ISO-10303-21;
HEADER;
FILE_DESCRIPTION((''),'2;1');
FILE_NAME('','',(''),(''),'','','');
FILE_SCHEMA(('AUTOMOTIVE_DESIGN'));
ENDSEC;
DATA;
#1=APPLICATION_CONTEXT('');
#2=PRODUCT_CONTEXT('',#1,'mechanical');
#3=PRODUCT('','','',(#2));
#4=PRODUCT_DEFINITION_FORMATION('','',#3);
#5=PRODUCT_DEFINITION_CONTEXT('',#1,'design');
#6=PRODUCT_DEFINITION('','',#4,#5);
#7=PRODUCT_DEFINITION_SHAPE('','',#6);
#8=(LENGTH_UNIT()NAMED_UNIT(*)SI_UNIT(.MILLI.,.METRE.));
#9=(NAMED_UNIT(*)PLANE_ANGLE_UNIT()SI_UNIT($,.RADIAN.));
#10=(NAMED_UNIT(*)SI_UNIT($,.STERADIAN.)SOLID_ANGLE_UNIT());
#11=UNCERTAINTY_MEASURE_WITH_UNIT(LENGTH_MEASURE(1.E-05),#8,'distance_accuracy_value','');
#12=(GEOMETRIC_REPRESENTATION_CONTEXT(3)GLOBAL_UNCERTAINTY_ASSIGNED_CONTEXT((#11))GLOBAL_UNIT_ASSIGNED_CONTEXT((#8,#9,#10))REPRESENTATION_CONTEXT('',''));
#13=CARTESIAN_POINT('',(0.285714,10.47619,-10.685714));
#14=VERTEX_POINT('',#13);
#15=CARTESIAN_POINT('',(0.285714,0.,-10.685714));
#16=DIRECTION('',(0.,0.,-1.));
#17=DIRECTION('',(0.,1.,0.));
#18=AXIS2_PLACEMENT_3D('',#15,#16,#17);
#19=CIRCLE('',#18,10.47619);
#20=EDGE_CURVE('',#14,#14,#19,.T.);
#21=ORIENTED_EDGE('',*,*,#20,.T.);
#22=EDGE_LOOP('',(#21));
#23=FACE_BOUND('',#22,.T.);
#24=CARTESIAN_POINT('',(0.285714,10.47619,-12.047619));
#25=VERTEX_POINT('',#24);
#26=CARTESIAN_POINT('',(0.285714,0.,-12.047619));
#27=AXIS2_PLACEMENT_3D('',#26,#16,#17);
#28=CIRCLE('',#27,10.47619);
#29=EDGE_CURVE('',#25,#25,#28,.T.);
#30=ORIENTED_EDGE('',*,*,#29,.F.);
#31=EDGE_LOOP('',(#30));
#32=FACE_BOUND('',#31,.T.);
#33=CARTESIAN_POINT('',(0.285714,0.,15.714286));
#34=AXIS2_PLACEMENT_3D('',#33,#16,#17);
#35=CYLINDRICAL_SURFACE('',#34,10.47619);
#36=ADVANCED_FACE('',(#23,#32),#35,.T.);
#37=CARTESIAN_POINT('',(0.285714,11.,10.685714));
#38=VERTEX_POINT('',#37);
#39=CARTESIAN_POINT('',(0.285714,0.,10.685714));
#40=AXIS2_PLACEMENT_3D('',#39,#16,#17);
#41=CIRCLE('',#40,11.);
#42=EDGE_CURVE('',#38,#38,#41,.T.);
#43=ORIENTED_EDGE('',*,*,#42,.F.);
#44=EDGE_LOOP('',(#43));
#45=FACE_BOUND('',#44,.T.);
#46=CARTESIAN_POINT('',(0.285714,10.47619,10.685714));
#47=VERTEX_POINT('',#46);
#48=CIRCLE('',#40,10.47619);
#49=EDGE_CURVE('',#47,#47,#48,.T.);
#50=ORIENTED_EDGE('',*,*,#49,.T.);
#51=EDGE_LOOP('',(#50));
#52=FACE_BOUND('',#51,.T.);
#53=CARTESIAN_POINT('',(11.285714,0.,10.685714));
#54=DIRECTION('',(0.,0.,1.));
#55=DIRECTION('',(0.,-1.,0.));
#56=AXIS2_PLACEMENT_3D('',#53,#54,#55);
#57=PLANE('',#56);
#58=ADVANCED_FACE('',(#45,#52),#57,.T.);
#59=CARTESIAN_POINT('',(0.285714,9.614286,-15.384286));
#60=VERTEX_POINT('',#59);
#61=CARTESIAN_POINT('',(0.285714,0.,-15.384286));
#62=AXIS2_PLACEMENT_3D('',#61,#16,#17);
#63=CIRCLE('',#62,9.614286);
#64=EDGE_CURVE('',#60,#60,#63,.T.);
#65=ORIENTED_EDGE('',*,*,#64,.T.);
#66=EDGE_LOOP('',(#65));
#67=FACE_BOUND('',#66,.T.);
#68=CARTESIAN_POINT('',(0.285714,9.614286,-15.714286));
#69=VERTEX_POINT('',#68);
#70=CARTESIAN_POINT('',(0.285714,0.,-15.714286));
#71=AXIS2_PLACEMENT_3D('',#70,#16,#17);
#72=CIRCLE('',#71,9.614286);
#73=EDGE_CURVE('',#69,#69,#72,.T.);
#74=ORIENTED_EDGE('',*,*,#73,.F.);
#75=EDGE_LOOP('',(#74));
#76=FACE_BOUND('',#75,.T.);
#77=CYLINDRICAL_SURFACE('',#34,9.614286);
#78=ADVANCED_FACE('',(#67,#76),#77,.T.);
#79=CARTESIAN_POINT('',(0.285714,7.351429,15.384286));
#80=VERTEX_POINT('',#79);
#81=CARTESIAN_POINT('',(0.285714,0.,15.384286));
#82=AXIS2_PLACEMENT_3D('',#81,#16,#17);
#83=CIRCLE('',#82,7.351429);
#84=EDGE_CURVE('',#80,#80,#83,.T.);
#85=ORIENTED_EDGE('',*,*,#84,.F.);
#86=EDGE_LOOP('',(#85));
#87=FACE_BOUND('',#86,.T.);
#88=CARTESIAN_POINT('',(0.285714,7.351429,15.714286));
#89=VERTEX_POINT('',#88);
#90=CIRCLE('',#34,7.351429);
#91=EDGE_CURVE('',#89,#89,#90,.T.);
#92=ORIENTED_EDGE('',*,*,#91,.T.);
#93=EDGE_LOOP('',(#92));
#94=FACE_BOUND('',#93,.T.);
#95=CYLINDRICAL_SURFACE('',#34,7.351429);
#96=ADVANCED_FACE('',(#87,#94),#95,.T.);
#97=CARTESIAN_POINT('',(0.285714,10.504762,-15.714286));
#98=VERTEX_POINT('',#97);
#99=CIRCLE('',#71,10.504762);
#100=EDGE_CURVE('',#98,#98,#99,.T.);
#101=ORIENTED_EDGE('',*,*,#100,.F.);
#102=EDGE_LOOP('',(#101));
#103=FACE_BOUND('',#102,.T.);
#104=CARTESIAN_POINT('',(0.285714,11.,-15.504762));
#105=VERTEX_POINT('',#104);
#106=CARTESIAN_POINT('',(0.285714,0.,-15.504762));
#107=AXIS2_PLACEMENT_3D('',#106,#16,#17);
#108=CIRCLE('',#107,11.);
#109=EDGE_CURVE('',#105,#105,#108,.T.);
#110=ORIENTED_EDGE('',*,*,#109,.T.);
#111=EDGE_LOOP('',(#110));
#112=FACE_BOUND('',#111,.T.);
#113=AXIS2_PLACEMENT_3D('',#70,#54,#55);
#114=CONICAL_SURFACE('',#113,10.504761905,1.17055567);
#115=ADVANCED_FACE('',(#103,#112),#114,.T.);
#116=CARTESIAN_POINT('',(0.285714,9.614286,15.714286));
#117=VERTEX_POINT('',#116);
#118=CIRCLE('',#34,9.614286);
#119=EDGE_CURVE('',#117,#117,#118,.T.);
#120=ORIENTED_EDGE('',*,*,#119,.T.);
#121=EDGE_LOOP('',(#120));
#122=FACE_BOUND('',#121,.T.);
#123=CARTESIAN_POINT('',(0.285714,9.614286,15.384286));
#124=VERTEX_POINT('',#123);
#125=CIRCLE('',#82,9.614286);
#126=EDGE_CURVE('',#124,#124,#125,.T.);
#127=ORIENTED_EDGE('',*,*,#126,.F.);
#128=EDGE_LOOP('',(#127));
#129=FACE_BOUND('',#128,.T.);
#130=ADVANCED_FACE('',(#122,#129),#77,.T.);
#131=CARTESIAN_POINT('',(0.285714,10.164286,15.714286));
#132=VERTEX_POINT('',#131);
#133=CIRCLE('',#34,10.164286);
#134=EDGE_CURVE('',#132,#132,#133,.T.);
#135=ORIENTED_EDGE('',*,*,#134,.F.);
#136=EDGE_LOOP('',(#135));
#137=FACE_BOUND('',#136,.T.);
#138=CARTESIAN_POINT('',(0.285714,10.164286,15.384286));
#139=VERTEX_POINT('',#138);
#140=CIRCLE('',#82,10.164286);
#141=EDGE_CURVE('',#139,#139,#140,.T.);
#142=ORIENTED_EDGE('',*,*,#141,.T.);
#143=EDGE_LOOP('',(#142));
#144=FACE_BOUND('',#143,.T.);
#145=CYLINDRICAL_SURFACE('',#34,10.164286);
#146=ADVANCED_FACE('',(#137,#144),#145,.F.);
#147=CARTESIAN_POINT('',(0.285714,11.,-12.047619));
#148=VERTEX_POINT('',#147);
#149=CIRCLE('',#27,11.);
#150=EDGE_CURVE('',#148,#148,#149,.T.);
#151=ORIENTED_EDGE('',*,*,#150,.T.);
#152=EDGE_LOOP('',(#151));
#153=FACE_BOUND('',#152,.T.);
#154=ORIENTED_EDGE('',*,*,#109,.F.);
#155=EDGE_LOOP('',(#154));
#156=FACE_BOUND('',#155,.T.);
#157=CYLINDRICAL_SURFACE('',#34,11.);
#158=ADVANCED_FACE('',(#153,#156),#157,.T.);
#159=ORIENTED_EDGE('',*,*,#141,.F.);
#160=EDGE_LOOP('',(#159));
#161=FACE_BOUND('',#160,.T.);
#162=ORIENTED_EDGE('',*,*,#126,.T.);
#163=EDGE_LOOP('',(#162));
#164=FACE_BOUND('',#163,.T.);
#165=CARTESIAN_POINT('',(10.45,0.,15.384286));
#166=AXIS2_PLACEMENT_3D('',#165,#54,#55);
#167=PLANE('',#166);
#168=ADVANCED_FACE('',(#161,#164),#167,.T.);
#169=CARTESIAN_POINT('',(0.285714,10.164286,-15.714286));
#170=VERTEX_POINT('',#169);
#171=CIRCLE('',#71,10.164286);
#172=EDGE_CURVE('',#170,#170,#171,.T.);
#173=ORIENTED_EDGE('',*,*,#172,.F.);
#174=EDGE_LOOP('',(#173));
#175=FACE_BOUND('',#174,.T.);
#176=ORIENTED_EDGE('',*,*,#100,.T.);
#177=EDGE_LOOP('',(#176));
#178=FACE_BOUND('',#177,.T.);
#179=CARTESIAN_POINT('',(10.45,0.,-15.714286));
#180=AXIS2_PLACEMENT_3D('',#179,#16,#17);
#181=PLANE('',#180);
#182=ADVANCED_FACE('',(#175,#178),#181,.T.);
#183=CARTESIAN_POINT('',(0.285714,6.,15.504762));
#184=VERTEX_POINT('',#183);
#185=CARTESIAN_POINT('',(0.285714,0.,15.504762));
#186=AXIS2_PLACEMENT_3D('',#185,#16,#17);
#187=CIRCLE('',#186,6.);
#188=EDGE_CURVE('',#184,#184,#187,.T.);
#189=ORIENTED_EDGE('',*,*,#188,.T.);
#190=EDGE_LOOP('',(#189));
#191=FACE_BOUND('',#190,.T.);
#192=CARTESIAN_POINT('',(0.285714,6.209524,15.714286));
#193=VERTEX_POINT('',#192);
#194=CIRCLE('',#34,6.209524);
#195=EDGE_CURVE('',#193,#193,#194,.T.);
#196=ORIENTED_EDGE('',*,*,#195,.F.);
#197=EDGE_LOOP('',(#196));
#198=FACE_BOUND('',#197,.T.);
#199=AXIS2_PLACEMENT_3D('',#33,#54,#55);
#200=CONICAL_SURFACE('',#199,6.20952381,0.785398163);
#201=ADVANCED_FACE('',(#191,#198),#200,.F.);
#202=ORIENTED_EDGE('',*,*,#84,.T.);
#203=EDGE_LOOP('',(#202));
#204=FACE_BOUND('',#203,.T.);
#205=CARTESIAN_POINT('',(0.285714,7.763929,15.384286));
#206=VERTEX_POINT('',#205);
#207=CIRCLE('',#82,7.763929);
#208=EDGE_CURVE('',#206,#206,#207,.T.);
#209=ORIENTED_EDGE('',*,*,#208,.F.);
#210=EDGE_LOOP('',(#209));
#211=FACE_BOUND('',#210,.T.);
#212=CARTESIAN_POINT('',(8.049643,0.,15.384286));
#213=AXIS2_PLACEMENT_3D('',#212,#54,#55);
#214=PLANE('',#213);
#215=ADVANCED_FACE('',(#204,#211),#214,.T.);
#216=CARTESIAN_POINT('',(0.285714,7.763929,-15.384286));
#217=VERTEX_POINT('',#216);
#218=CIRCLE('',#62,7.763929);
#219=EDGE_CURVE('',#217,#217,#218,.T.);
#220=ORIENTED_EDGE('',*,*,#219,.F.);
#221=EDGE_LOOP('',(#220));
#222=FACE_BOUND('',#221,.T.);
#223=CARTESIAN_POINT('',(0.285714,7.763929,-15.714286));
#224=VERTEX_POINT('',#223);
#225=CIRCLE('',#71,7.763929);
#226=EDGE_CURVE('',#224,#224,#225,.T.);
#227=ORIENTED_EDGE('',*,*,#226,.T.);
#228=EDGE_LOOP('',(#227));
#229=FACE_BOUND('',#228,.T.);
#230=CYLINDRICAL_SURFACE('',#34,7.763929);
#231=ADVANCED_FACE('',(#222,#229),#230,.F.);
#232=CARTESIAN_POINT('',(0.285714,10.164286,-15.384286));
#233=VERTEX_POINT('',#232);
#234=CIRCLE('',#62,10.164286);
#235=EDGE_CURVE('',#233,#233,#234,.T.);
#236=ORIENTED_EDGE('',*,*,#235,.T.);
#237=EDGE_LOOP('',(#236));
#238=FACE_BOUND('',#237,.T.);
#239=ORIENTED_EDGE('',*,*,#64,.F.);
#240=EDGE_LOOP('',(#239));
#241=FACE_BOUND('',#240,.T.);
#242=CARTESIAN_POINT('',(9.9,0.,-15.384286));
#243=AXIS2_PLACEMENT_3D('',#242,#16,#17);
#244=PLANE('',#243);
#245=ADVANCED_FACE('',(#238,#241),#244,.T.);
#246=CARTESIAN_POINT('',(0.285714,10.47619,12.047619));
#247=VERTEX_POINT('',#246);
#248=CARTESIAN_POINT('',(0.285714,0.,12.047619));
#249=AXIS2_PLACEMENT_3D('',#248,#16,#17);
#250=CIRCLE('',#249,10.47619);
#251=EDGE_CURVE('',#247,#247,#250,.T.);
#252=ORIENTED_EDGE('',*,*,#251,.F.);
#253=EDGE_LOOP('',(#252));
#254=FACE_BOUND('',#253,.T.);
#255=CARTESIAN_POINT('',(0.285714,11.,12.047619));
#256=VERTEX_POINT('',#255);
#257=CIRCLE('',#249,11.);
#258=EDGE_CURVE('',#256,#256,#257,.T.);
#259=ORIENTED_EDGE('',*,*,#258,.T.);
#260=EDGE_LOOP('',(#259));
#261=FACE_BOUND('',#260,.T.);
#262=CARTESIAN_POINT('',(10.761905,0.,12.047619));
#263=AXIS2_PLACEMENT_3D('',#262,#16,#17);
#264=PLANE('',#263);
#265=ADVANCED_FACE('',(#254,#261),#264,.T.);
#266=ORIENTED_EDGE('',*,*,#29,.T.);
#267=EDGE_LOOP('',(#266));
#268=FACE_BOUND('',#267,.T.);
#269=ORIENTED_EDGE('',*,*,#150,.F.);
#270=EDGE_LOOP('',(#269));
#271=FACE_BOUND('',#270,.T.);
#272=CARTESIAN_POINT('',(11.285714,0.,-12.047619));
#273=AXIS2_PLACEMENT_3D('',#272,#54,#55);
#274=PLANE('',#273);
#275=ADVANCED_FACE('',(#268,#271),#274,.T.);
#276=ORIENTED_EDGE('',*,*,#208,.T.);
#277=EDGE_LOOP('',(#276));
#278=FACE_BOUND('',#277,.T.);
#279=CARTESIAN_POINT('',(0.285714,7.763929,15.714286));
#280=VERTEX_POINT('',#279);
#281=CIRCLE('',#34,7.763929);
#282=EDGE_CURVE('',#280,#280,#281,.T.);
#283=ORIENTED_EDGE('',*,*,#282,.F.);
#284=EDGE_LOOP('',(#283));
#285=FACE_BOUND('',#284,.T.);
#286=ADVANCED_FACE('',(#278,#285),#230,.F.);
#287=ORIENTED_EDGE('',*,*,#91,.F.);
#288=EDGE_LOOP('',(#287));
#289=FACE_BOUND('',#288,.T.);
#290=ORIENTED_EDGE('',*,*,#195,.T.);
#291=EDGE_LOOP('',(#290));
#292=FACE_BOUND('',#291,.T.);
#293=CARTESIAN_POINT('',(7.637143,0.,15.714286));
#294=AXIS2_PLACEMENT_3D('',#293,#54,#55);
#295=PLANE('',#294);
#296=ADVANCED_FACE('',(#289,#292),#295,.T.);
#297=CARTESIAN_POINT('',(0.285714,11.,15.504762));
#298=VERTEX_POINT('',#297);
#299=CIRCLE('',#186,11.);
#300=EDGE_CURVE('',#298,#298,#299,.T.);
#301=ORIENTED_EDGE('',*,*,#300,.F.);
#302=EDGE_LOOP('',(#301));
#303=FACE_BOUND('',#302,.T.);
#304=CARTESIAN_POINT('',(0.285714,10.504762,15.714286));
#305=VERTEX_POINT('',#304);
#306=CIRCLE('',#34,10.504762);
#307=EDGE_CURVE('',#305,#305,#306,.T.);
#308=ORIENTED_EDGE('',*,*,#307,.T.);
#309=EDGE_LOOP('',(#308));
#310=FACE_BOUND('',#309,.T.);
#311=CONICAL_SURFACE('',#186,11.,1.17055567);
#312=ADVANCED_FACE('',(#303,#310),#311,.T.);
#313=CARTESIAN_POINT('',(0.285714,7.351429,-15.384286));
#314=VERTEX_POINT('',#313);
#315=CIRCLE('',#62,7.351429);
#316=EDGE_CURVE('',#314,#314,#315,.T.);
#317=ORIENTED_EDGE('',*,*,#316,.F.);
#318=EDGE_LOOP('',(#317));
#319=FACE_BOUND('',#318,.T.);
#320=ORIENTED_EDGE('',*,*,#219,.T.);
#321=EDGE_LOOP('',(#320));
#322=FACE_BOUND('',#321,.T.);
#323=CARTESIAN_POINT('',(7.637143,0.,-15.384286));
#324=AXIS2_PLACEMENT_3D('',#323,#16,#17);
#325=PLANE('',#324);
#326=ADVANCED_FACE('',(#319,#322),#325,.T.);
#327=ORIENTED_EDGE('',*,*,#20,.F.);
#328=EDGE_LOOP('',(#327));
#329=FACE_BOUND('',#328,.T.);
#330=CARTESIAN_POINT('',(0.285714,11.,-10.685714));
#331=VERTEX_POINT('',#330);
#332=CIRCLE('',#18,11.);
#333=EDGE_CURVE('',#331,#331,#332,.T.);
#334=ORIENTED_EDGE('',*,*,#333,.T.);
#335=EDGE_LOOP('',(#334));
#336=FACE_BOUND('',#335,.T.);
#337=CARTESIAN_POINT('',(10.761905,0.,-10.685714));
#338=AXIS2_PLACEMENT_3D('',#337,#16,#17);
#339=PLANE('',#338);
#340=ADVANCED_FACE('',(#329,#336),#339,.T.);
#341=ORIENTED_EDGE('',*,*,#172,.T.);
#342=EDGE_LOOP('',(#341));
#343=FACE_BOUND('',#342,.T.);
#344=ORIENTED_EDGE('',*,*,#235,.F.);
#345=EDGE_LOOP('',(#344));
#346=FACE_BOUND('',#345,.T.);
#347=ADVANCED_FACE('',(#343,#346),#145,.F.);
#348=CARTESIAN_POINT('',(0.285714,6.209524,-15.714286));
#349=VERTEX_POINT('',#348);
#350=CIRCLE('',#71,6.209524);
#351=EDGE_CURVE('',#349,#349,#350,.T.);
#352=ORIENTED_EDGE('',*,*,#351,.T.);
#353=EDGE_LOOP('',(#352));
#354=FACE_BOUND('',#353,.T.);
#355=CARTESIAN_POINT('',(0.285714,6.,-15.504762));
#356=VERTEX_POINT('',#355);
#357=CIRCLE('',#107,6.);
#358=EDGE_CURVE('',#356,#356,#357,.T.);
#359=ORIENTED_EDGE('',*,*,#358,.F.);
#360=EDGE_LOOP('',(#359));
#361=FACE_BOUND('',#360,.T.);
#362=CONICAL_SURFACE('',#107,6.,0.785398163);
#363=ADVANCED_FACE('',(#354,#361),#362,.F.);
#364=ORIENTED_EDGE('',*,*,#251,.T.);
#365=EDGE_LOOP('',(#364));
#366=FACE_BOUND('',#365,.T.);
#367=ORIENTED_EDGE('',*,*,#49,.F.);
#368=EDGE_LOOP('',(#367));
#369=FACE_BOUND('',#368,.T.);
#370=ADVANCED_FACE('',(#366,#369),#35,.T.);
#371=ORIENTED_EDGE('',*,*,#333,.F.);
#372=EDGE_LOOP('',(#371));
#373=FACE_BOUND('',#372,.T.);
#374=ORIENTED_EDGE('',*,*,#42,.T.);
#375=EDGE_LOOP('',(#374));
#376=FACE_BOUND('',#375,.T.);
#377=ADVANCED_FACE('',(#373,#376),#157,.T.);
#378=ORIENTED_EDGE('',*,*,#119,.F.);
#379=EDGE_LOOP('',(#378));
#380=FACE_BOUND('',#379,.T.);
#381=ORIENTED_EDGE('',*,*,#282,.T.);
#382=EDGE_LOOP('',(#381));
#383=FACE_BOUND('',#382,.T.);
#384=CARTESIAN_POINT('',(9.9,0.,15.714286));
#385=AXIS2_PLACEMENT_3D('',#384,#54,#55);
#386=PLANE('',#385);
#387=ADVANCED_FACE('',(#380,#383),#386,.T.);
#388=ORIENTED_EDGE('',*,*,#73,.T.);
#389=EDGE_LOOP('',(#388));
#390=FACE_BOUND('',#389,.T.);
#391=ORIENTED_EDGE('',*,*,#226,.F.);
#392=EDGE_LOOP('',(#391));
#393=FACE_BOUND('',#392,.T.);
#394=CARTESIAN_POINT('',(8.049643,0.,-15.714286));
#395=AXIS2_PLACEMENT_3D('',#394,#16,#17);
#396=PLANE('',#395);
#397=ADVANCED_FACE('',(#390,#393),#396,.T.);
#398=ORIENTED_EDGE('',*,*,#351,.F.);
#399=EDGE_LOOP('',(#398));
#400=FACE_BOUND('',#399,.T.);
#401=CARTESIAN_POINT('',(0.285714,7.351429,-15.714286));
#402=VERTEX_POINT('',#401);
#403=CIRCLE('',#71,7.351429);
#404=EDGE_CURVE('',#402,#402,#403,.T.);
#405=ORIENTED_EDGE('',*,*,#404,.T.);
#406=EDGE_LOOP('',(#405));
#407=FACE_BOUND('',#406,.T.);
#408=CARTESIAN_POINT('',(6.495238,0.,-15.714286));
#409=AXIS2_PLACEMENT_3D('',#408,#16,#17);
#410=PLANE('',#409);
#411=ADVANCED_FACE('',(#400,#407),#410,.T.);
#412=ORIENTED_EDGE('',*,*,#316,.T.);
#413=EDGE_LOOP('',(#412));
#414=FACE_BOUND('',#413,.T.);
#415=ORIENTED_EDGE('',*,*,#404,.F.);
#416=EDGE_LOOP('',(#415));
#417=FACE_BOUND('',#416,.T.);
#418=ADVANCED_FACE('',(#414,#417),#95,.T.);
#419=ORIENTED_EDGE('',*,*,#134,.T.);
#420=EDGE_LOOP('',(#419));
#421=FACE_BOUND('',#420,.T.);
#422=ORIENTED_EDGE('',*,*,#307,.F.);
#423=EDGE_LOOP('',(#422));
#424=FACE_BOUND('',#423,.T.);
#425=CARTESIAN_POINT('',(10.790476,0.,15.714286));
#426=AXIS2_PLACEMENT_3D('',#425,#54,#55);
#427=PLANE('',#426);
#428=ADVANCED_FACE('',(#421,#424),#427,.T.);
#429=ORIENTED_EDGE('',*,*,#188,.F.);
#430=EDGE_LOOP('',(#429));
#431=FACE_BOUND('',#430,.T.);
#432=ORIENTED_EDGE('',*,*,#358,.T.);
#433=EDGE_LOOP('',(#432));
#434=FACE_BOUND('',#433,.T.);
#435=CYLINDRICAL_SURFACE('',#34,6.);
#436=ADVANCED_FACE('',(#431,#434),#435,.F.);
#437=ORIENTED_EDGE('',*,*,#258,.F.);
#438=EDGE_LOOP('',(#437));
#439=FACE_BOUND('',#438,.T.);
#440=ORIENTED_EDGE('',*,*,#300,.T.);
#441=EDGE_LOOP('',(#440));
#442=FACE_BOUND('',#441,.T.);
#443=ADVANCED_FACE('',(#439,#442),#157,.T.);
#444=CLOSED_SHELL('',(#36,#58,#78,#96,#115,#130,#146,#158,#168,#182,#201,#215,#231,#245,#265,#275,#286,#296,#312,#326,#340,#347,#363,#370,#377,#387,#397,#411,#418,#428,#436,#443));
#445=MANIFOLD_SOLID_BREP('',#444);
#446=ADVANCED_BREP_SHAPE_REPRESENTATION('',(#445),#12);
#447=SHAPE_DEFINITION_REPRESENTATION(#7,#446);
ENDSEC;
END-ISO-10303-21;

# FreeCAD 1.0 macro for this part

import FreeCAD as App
import Part
import Sketcher
from FreeCAD import Vector


def add_polygon(sketch, points):
    """Adds a closed chain of lines whose ends are joined by coincident constraints."""
    first, n = sketch.GeometryCount, len(points)
    for a, b in zip(points, points[1:] + points[:1]):
        sketch.addGeometry(Part.LineSegment(App.Vector(*a, 0), App.Vector(*b, 0)), False)
    for i in range(n):
        sketch.addConstraint(Sketcher.Constraint("Coincident", first + i, 2, first + (i + 1) % n, 1))

doc = App.newDocument("Part")
body = doc.addObject("PartDesign::Body", "Body")

# Sketch on XZ plane
sketch1 = doc.addObject("Sketcher::SketchObject", "Sketch")
body.addObject(sketch1)
sketch1.AttachmentSupport = (doc.XZ_Plane, [""])
sketch1.MapMode = "FlatFace"
add_polygon(sketch1, [(6.495238, 15.714286), (6.285714, 15.504762), (6.285714, -15.504762), (6.495238, -15.714286), (7.637143, -15.714286), (7.637143, -15.384286), (8.049643, -15.384286), (8.049643, -15.714286), (9.9, -15.714286), (9.9, -15.384286), (10.45, -15.384286), (10.45, -15.714286), (10.790476, -15.714286), (11.285714, -15.504762), (11.285714, -12.047619), (10.761905, -12.047619), (10.761905, -10.685714), (11.285714, -10.685714), (11.285714, 10.685714), (10.761905, 10.685714), (10.761905, 12.047619), (11.285714, 12.047619), (11.285714, 15.504762), (10.790476, 15.714286), (10.45, 15.714286), (10.45, 15.384286), (9.9, 15.384286), (9.9, 15.714286), (8.049643, 15.714286), (8.049643, 15.384286), (7.637143, 15.384286), (7.637143, 15.714286)])  # lines 0-31
sketch1.addGeometry(Part.LineSegment(Vector(0.285714, 15.714286, 0), Vector(0.285714, -15.714286, 0)), True)  # axis
sketch1.addConstraint(Sketcher.Constraint("Vertical", 1))
sketch1.addConstraint(Sketcher.Constraint("Horizontal", 3))
sketch1.addConstraint(Sketcher.Constraint("Vertical", 4))
sketch1.addConstraint(Sketcher.Constraint("Horizontal", 5))
sketch1.addConstraint(Sketcher.Constraint("Vertical", 6))
sketch1.addConstraint(Sketcher.Constraint("Horizontal", 7))
sketch1.addConstraint(Sketcher.Constraint("Vertical", 8))
sketch1.addConstraint(Sketcher.Constraint("Horizontal", 9))
sketch1.addConstraint(Sketcher.Constraint("Vertical", 10))
sketch1.addConstraint(Sketcher.Constraint("Horizontal", 11))
sketch1.addConstraint(Sketcher.Constraint("Vertical", 13))
sketch1.addConstraint(Sketcher.Constraint("Horizontal", 14))
sketch1.addConstraint(Sketcher.Constraint("Vertical", 15))
sketch1.addConstraint(Sketcher.Constraint("Horizontal", 16))
sketch1.addConstraint(Sketcher.Constraint("Vertical", 17))
sketch1.addConstraint(Sketcher.Constraint("Horizontal", 18))
sketch1.addConstraint(Sketcher.Constraint("Vertical", 19))
sketch1.addConstraint(Sketcher.Constraint("Horizontal", 20))
sketch1.addConstraint(Sketcher.Constraint("Vertical", 21))
sketch1.addConstraint(Sketcher.Constraint("Horizontal", 23))
sketch1.addConstraint(Sketcher.Constraint("Vertical", 24))
sketch1.addConstraint(Sketcher.Constraint("Horizontal", 25))
sketch1.addConstraint(Sketcher.Constraint("Vertical", 26))
sketch1.addConstraint(Sketcher.Constraint("Horizontal", 27))
sketch1.addConstraint(Sketcher.Constraint("Vertical", 28))
sketch1.addConstraint(Sketcher.Constraint("Horizontal", 29))
sketch1.addConstraint(Sketcher.Constraint("Vertical", 30))
sketch1.addConstraint(Sketcher.Constraint("Horizontal", 31))
sketch1.addConstraint(Sketcher.Constraint("Vertical", 32))
sketch1.addConstraint(Sketcher.Constraint("Symmetric", 15, 2, 18, 2, -1))
sketch1.addConstraint(Sketcher.Constraint("Symmetric", 13, 2, 20, 2, -1))
sketch1.addConstraint(Sketcher.Constraint("Symmetric", 11, 2, 22, 2, -1))
sketch1.addConstraint(Sketcher.Constraint("Symmetric", 9, 2, 24, 2, -1))
sketch1.addConstraint(Sketcher.Constraint("Symmetric", 7, 2, 26, 2, -1))
sketch1.addConstraint(Sketcher.Constraint("Symmetric", 5, 2, 28, 2, -1))
sketch1.addConstraint(Sketcher.Constraint("Symmetric", 3, 2, 30, 2, -1))
sketch1.addConstraint(Sketcher.Constraint("Perpendicular", 0, 2))
sketch1.addConstraint(Sketcher.Constraint("Horizontal", 3, 2, 6, 2))
sketch1.addConstraint(Sketcher.Constraint("Horizontal", 5, 2, 8, 2))
sketch1.addConstraint(Sketcher.Constraint("Horizontal", 7, 2, 10, 2))
sketch1.addConstraint(Sketcher.Constraint("Horizontal", 1, 2, 12, 2))
sketch1.addConstraint(Sketcher.Constraint("Horizontal", 0, 2, 21, 2))
sketch1.addConstraint(Sketcher.Constraint("Horizontal", 31, 2, 32, 1))
sketch1.addConstraint(Sketcher.Constraint("Horizontal", 11, 2, 32, 2))
sketch1.addConstraint(Sketcher.Constraint("Vertical", 13, 2, 16, 2))
sketch1.addConstraint(Sketcher.Constraint("Vertical", 2, 2, 31, 2))
sketch1.addConstraint(Sketcher.Constraint("Equal", 13, 21))
sketch1.addConstraint(Sketcher.Constraint("DistanceX", 0, 2, 17, 2, 5.0))
sketch1.addConstraint(Sketcher.Constraint("DistanceX", 32, 1, 0, 2, 6.0))
sketch1.addConstraint(Sketcher.Constraint("DistanceX", 9, 1, 9, 2, 0.55))
sketch1.addConstraint(Sketcher.Constraint("DistanceY", 4, 1, 4, 2, 0.33))
sketch1.addConstraint(Sketcher.Constraint("DistanceX", -1, 1, 7, 2, 9.9))
sketch1.addConstraint(Sketcher.Constraint("DistanceX", 5, 1, 5, 2, 0.4125))
sketch1.addConstraint(Sketcher.Constraint("DistanceX", 14, 2, 14, 1, 0.52381))
sketch1.addConstraint(Sketcher.Constraint("DistanceY", 17, 1, 17, 2, 21.371429))
sketch1.addConstraint(Sketcher.Constraint("DistanceY", 32, 2, 32, 1, 31.428571))
sketch1.addConstraint(Sketcher.Constraint("Distance", 0, 0.296311))
sketch1.addConstraint(Sketcher.Constraint("DistanceX", 3, 1, 3, 2, 1.141905))
sketch1.addConstraint(Sketcher.Constraint("DistanceX", 7, 1, 7, 2, 1.850357))
sketch1.addConstraint(Sketcher.Constraint("DistanceX", 11, 1, 11, 2, 0.340476))
sketch1.addConstraint(Sketcher.Constraint("DistanceY", 13, 1, 13, 2, 3.457143))
revolution = doc.addObject("PartDesign::Revolution", "Revolution")
body.addObject(revolution)
revolution.Profile = sketch1
revolution.ReferenceAxis = (sketch1, ["Axis0"])
revolution.Angle = 360

doc.recompute()
